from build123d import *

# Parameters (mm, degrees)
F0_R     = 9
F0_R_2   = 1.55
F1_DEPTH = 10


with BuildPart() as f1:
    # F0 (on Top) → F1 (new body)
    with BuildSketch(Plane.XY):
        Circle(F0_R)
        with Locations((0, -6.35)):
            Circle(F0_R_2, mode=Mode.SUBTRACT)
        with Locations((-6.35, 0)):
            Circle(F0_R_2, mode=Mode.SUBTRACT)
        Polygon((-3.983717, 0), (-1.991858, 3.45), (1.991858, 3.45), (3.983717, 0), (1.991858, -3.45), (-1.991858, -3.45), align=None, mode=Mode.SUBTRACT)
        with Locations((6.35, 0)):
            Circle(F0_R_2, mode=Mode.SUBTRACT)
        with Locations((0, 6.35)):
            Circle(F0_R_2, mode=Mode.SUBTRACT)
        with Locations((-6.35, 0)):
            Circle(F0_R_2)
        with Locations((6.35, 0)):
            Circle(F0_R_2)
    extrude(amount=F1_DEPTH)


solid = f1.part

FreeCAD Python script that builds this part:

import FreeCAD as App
import Part
import Sketcher
from FreeCAD import Vector
Q = App.Units.Quantity

doc = App.newDocument("Part")
body = doc.addObject("PartDesign::Body", "Body")

sketch1 = body.newObject("Sketcher::SketchObject", "Sketch")
sketch1.AttachmentSupport = (doc.getObject("XY_Plane"), [""])
sketch1.MapMode = "FlatFace"
sketch1.addGeometry([
    Part.Circle(Vector(0, 0, 0), Vector(0, 0, 1), 9),
    Part.Circle(Vector(0, -6.35, 0), Vector(0, 0, 1), 1.55),
    Part.LineSegment(Vector(-1.991858, -3.45, 0), Vector(-3.983717, 0, 0)),
    Part.LineSegment(Vector(-3.983717, 0, 0), Vector(-1.991858, 3.45, 0)),
    Part.LineSegment(Vector(-1.991858, 3.45, 0), Vector(1.991858, 3.45, 0)),
    Part.LineSegment(Vector(1.991858, 3.45, 0), Vector(3.983717, 0, 0)),
    Part.LineSegment(Vector(3.983717, 0, 0), Vector(1.991858, -3.45, 0)),
    Part.LineSegment(Vector(1.991858, -3.45, 0), Vector(-1.991858, -3.45, 0)),
    Part.Circle(Vector(0, 6.35, 0), Vector(0, 0, 1), 1.55),
], False)
sketch1.addConstraint([
    Sketcher.Constraint("Coincident", 2, 2, 3, 1),
    Sketcher.Constraint("Coincident", 3, 2, 4, 1),
    Sketcher.Constraint("Coincident", 4, 2, 5, 1),
    Sketcher.Constraint("Coincident", 5, 2, 6, 1),
    Sketcher.Constraint("Coincident", 6, 2, 7, 1),
    Sketcher.Constraint("Coincident", 7, 2, 2, 1),
    Sketcher.Constraint("Horizontal", 4),
    Sketcher.Constraint("Horizontal", 7),
    Sketcher.Constraint("Coincident", 0, 3, -1, 1),
    Sketcher.Constraint("Equal", 1, 8),
    Sketcher.Constraint("Symmetric", 1, 3, 8, 3, -1, 1),
    Sketcher.Constraint("Symmetric", 2, 2, 5, 2, -1, 1),
    Sketcher.Constraint("Symmetric", 3, 2, 6, 2, -1, 1),
    Sketcher.Constraint("PointOnObject", 1, 3, -2),
    Sketcher.Constraint("PointOnObject", 2, 2, -1),
    Sketcher.Constraint("Parallel", 2, 5),
    Sketcher.Constraint("Vertical", 4, 2, 6, 2),
    Sketcher.Constraint("Diameter", 0, Q("18 mm")),
    Sketcher.Constraint("Diameter", 1, Q("3.1 mm")),
    Sketcher.Constraint("Angle", 2, Q("120.000007 deg")),
    Sketcher.Constraint("DistanceY", 1, 3, 8, 3, Q("12.7 mm")),
    Sketcher.Constraint("DistanceY", 3, 2, 8, 3, Q("2.9 mm")),
    Sketcher.Constraint("DistanceX", 4, 1, 4, 2, Q("3.983716 mm")),
])
pad1 = body.newObject("PartDesign::Pad", "Pad")
pad1.Profile = sketch1
pad1.Length = 10

doc.recompute()
